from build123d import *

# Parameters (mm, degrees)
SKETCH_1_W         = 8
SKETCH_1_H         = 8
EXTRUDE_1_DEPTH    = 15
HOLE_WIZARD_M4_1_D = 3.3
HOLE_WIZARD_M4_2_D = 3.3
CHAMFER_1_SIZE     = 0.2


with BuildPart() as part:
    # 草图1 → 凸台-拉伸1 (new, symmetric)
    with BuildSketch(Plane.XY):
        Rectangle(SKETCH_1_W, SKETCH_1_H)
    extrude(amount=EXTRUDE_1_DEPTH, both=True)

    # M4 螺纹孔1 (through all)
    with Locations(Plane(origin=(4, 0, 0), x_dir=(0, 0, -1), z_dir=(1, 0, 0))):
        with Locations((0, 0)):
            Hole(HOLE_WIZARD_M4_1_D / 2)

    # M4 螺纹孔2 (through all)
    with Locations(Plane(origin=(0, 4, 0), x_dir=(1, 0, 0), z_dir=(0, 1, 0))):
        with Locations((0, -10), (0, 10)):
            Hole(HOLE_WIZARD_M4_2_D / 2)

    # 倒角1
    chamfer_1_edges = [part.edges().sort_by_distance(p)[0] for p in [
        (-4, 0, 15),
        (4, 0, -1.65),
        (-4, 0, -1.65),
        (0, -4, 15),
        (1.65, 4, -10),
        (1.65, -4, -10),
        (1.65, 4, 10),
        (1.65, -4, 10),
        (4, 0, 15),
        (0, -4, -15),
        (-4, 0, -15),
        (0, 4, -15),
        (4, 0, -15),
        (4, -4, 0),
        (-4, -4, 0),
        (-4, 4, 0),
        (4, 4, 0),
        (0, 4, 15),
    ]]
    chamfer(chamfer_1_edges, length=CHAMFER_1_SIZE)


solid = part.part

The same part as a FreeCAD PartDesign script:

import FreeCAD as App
import Part
import Sketcher

V = App.Vector
Q = App.Units.Quantity


def add_polygon(sketch, points):
    """Adds a closed chain of lines whose ends are joined by coincident constraints."""
    first, n = sketch.GeometryCount, len(points)
    for a, b in zip(points, points[1:] + points[:1]):
        sketch.addGeometry(Part.LineSegment(App.Vector(*a, 0), App.Vector(*b, 0)), False)
    for i in range(n):
        sketch.addConstraint(Sketcher.Constraint("Coincident", first + i, 2, first + (i + 1) % n, 1))

doc = App.newDocument("Part")
body = doc.addObject("PartDesign::Body", "Body")

# Sketch on XY plane
sketch1 = body.newObject("Sketcher::SketchObject", "Sketch")
sketch1.AttachmentSupport = (doc.getObject("XY_Plane"), [""])
sketch1.MapMode = "FlatFace"
add_polygon(sketch1, [(-4, 4), (-4, -4), (4, -4), (4, 4)])  # lines 0-3
sketch1.addConstraint([
    Sketcher.Constraint("Vertical", 0),
    Sketcher.Constraint("Horizontal", 1),
    Sketcher.Constraint("Vertical", 2),
    Sketcher.Constraint("Horizontal", 3),
    Sketcher.Constraint("Symmetric", 0, 2, 2, 2, -1, 1),
    Sketcher.Constraint("Equal", 3, 0),
    Sketcher.Constraint("DistanceX", 1, 1, 1, 2, Q("8 mm")),
])
pad1 = body.newObject("PartDesign::Pad", "Pad")
pad1.Profile = sketch1
pad1.Length = 30
pad1.Midplane = True

# Sketch on YZ plane
sketch2 = body.newObject("Sketcher::SketchObject", "Sketch001")
sketch2.AttachmentSupport = (doc.getObject("YZ_Plane"), [""])
sketch2.MapMode = "FlatFace"
sketch2.AttachmentOffset = App.Placement(V(0, 0, 4), App.Rotation())
sketch2.addGeometry(Part.Circle(V(0, 0, 0), V(0, 0, 1), 1.6), False)
sketch2.addConstraint([
    Sketcher.Constraint("Coincident", 0, 3, -1, 1),
    Sketcher.Constraint("Diameter", 0, Q("3.3 mm")),
])
doc.recompute()
hole = body.newObject("PartDesign::Hole", "Hole")
hole.Profile = sketch2
hole.ThreadType = "None"
hole.Diameter = 3.3
hole.DepthType = "ThroughAll"

# Sketch on XZ plane
sketch3 = body.newObject("Sketcher::SketchObject", "Sketch002")
sketch3.AttachmentSupport = (doc.getObject("XZ_Plane"), [""])
sketch3.MapMode = "FlatFace"
sketch3.AttachmentOffset = App.Placement(V(0, 0, -4), App.Rotation())
sketch3.addGeometry([
    Part.Circle(V(0, 10, 0), V(0, 0, 1), 1.6),
    Part.Circle(V(0, -10, 0), V(0, 0, 1), 1.6),
], False)
sketch3.addConstraint([
    Sketcher.Constraint("Equal", 0, 1),
    Sketcher.Constraint("Symmetric", 0, 3, 1, 3, -1, 1),
    Sketcher.Constraint("PointOnObject", 0, 3, -2),
    Sketcher.Constraint("Diameter", 0, Q("3.3 mm")),
    Sketcher.Constraint("DistanceY", -1, 1, 0, 3, Q("10 mm")),
])
doc.recompute()
hole2 = body.newObject("PartDesign::Hole", "Hole001")
hole2.Profile = sketch3
hole2.ThreadType = "None"
hole2.Diameter = 3.3
hole2.DepthType = "ThroughAll"
hole2.Reversed = True
doc.recompute()

chamfer = body.newObject("PartDesign::Chamfer", "Chamfer")
chamfer.Base = (hole2, ["Edge1"])
chamfer.UseAllEdges = True
chamfer.Size = 0.2

doc.recompute()
